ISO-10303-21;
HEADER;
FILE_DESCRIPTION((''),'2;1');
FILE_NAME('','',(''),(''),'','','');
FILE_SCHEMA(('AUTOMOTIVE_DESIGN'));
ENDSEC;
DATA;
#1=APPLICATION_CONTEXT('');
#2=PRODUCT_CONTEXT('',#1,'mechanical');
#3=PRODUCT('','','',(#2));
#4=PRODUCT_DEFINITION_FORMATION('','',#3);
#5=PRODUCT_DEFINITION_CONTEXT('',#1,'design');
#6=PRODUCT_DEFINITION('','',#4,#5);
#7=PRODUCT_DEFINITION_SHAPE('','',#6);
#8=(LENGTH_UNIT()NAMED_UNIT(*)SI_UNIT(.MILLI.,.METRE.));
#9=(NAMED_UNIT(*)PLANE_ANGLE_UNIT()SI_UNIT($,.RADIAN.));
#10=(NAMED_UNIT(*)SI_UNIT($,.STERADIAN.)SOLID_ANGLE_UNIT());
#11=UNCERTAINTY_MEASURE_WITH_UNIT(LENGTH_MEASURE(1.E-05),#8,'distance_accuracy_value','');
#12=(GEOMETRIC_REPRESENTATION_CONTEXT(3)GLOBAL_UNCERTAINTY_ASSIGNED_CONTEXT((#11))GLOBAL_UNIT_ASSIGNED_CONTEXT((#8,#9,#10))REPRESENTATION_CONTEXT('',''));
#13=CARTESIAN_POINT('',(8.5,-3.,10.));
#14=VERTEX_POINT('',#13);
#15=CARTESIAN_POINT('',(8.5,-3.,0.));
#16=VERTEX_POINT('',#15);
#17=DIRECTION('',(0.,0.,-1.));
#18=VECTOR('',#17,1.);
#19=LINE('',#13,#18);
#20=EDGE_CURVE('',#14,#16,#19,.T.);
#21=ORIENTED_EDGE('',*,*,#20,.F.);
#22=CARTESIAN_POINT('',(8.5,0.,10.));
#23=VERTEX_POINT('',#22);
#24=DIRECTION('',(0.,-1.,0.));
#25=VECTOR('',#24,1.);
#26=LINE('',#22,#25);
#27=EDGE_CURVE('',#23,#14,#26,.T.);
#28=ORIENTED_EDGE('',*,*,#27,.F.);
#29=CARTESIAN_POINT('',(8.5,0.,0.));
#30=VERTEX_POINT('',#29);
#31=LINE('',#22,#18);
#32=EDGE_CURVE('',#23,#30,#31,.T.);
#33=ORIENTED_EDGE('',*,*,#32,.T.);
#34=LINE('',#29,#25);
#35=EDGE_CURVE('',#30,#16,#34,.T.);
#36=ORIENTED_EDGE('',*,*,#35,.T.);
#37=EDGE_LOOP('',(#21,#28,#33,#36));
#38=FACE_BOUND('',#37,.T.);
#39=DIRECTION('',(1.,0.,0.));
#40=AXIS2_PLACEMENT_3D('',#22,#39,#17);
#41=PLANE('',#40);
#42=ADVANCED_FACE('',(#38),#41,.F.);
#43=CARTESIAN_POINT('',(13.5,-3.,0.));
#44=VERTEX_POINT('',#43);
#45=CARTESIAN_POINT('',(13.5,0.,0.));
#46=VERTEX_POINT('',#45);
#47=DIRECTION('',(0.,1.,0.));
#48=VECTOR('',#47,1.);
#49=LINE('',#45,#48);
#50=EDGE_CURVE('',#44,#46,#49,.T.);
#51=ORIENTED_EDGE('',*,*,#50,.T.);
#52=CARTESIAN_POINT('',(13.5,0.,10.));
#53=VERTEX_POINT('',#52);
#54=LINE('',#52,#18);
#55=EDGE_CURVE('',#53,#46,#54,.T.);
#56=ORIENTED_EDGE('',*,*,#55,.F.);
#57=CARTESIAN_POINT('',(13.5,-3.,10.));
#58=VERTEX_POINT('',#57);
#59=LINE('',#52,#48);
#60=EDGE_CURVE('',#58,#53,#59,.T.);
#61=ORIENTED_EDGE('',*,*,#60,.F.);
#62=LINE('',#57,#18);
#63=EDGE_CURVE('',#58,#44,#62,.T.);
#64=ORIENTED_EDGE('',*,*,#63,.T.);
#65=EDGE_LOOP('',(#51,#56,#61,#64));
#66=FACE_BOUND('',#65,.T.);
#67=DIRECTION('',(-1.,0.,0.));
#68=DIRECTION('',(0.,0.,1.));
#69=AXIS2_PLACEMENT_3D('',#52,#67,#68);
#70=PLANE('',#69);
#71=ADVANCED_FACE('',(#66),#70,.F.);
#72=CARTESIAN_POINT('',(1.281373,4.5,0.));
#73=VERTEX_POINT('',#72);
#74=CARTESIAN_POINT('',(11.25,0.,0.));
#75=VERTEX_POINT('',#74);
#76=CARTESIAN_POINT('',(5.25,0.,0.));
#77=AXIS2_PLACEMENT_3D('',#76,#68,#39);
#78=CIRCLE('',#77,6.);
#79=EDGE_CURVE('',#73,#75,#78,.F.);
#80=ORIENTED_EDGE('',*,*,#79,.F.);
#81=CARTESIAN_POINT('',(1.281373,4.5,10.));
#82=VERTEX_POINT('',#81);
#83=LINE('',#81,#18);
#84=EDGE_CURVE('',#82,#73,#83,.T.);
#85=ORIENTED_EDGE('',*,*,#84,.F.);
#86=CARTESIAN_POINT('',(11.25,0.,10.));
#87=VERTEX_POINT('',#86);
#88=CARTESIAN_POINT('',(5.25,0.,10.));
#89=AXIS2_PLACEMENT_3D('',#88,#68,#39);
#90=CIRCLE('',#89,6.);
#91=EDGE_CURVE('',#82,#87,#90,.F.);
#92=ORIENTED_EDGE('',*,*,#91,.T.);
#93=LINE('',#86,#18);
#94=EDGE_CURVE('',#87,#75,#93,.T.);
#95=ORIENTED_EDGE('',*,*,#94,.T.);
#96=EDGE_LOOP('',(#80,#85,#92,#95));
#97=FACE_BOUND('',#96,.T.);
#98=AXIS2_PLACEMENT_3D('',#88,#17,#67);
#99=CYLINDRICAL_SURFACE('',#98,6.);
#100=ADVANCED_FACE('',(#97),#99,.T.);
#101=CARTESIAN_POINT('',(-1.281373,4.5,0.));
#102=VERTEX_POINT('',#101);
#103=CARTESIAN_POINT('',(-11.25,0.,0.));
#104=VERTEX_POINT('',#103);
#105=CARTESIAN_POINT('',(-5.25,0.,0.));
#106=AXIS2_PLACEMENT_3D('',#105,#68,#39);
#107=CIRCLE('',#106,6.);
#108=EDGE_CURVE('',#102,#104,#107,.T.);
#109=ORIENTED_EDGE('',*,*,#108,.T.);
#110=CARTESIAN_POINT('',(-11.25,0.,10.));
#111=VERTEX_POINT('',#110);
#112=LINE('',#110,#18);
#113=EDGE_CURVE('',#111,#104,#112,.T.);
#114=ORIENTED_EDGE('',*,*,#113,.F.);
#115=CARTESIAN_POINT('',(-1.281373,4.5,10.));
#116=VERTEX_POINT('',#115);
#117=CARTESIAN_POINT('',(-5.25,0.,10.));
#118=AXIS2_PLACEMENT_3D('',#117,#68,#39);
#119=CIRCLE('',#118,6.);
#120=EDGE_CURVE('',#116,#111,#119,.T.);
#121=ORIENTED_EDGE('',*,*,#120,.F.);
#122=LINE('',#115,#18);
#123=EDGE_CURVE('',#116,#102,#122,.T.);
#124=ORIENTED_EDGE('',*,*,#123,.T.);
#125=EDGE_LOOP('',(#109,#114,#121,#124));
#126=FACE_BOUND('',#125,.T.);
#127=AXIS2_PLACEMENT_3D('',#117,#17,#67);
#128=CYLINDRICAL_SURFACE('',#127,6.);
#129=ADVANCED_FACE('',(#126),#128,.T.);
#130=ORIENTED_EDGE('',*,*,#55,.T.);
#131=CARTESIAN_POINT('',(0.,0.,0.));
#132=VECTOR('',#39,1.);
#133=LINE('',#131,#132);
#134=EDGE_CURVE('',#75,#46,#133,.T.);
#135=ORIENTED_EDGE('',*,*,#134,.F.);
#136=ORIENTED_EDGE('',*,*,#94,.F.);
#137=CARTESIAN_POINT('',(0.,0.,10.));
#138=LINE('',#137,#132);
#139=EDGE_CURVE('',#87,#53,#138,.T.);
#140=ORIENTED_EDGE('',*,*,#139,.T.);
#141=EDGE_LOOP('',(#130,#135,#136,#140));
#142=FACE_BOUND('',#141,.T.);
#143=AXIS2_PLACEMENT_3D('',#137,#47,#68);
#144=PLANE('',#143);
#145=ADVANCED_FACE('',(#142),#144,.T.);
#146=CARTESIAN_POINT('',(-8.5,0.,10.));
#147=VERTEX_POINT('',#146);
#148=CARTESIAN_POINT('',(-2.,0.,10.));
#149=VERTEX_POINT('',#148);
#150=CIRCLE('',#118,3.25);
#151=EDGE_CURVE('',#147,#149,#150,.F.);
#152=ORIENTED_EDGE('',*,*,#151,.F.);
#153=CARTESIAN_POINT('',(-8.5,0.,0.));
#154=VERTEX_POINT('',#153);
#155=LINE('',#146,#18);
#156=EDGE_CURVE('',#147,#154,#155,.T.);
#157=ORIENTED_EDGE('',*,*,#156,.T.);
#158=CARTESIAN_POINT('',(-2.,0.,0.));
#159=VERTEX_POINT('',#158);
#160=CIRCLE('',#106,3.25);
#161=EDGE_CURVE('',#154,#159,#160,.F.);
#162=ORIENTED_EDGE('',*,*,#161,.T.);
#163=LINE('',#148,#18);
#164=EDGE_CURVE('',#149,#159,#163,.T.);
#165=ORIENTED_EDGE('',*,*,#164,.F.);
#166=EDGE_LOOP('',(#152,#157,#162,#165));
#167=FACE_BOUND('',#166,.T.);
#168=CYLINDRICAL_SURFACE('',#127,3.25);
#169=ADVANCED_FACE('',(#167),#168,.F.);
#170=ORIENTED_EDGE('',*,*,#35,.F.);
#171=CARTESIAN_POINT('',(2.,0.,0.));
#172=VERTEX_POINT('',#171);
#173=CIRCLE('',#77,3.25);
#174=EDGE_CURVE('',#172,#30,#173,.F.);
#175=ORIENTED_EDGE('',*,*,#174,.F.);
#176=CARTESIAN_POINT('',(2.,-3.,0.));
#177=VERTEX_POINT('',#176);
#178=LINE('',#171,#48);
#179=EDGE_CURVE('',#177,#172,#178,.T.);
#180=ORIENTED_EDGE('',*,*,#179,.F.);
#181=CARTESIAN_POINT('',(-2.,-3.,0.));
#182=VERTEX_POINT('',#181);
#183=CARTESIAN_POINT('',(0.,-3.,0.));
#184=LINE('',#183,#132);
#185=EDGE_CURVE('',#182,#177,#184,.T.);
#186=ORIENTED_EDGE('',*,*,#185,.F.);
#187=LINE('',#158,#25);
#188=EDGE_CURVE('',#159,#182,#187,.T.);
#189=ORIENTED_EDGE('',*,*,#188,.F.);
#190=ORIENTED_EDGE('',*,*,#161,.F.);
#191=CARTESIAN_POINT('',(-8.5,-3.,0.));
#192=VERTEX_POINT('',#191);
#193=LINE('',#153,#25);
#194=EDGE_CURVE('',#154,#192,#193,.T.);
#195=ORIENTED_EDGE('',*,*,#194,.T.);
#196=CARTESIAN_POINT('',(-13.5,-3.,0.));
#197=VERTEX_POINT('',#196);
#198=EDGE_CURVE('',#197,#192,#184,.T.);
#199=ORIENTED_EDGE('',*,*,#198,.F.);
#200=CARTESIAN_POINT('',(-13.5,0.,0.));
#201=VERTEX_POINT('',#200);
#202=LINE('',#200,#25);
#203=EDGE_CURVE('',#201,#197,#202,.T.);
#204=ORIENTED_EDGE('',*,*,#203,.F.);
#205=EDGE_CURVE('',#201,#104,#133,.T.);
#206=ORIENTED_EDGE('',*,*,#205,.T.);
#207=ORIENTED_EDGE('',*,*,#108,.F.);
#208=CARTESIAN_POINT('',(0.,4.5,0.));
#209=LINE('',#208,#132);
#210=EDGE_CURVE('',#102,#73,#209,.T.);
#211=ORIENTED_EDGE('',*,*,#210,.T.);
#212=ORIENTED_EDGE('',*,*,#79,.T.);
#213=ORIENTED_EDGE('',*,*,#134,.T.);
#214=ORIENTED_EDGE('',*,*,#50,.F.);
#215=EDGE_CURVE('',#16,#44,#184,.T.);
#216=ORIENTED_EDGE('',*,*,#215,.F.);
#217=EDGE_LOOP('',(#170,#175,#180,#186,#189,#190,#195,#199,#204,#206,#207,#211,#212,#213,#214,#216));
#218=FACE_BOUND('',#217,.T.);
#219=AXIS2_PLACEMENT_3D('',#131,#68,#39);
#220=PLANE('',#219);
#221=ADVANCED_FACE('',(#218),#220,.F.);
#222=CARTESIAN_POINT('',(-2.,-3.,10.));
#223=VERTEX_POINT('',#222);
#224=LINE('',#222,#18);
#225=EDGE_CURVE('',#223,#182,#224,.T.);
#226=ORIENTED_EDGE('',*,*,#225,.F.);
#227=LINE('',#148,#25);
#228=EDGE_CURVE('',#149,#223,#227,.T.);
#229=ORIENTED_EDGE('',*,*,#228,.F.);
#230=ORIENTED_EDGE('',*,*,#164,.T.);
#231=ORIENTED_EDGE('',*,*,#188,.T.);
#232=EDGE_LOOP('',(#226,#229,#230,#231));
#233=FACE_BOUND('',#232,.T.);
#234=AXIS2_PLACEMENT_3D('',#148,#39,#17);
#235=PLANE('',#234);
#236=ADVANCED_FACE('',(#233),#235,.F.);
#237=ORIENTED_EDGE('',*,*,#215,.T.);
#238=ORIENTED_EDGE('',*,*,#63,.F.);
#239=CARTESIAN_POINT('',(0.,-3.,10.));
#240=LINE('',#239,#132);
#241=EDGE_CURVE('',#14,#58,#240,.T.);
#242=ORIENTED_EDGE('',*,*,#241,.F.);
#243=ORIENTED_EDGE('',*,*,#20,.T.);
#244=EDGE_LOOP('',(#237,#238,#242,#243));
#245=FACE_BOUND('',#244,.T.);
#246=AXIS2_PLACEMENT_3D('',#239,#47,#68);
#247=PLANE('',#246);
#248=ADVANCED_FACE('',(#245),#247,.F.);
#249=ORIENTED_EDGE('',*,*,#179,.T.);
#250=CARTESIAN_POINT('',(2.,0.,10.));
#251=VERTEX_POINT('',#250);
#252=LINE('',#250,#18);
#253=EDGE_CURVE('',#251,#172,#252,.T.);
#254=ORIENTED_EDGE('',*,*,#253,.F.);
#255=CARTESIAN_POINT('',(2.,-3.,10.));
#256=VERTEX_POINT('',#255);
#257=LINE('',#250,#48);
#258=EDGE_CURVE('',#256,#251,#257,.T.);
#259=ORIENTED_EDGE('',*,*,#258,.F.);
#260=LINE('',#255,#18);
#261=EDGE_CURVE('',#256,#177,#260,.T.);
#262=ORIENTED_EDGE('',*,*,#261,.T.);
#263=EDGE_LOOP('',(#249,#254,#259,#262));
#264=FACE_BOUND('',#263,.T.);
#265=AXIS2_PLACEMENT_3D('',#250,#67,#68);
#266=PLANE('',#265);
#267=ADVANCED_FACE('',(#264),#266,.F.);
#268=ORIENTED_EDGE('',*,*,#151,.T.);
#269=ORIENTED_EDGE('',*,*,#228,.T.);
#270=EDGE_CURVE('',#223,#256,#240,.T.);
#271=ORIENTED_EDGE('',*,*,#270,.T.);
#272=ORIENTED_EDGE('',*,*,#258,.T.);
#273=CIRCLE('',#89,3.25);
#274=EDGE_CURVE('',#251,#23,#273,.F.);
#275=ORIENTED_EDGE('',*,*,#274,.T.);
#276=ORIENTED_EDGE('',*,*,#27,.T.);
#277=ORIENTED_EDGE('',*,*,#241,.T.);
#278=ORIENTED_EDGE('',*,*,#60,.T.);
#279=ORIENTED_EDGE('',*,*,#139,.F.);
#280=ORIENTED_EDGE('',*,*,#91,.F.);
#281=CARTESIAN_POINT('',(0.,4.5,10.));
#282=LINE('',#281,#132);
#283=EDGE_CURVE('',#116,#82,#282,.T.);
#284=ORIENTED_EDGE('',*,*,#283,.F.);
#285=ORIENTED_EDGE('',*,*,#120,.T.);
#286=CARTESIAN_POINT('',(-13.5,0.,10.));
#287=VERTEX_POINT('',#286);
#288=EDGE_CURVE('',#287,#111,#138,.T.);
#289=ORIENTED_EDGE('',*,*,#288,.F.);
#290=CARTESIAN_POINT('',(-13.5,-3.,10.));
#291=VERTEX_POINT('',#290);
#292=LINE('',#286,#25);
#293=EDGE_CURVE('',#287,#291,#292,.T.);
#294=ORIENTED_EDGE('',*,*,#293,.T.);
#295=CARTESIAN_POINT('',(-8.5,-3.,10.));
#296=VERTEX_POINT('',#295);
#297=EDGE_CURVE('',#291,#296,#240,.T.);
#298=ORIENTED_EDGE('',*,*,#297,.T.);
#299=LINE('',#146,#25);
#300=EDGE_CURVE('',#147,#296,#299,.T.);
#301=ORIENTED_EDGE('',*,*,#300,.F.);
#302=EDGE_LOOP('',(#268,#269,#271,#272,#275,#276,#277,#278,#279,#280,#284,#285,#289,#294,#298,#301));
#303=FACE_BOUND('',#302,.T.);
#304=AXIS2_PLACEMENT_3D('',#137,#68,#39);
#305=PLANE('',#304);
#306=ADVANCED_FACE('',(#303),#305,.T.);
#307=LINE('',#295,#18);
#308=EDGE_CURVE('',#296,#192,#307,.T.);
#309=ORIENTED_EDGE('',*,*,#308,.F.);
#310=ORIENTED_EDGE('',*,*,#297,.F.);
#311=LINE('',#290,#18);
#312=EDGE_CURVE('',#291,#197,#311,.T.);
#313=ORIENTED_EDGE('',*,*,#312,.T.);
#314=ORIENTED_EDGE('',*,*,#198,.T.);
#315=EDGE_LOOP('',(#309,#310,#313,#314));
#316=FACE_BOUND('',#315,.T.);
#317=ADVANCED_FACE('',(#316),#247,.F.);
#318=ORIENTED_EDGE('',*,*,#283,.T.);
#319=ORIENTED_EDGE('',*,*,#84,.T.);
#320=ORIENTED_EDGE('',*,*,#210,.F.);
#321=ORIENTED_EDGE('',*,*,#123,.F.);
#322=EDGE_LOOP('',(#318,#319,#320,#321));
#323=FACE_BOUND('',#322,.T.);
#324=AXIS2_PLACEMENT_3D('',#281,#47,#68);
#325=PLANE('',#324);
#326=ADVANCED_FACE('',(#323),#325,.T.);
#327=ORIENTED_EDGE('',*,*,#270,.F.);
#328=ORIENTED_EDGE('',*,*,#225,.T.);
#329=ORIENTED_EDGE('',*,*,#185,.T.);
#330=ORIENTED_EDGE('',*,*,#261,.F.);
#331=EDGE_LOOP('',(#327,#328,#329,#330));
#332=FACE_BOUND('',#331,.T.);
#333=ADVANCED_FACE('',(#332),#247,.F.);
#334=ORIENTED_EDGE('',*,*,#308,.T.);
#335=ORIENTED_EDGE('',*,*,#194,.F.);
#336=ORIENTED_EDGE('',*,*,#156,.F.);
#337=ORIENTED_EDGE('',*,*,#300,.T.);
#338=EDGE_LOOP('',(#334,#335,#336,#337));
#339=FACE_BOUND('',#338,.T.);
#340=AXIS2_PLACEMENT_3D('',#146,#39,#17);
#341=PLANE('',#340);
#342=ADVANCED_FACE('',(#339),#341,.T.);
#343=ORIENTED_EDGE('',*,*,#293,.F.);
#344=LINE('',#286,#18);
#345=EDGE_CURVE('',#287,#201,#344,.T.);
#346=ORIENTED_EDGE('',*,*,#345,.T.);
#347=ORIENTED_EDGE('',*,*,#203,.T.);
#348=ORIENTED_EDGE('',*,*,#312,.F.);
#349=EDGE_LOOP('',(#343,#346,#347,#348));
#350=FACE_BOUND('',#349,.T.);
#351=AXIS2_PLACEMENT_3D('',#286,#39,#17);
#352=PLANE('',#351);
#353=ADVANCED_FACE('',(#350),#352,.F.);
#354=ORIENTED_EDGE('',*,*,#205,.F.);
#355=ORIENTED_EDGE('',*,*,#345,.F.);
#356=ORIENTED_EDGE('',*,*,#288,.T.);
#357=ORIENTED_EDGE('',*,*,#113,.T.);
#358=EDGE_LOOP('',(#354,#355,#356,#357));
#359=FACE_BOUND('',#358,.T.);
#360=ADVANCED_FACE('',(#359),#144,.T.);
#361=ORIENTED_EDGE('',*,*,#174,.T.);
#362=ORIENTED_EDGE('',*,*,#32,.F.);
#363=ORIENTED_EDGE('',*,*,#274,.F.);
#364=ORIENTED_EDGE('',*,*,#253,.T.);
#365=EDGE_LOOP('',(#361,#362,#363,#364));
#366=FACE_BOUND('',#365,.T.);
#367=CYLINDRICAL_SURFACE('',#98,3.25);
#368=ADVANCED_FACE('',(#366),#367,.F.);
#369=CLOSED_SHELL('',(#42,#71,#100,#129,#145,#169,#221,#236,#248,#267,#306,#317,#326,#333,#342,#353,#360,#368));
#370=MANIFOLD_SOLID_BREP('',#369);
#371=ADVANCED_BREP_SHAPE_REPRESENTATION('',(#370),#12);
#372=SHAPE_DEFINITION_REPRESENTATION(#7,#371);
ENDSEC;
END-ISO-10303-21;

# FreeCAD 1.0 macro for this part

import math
import FreeCAD as App
import Part
import Sketcher

V = App.Vector
Q = App.Units.Quantity

doc = App.newDocument("Part")
body = doc.addObject("PartDesign::Body", "Body")

# Sketch on XY plane
sketch1 = body.newObject("Sketcher::SketchObject", "Sketch")
sketch1.AttachmentSupport = (doc.getObject("XY_Plane"), [""])
sketch1.MapMode = "FlatFace"
sketch1.addGeometry(Part.ArcOfCircle(Part.Circle(V(5.25, 0, 0), V(0, 0, 1), 3.25), math.radians(0), math.radians(180)), False)
sketch1.addGeometry(Part.LineSegment(V(8.5, 0, 0), V(8.5, -3, 0)), False)
sketch1.addGeometry(Part.LineSegment(V(8.5, -3, 0), V(13.5, -3, 0)), False)
sketch1.addGeometry(Part.LineSegment(V(13.5, -3, 0), V(13.5, 0, 0)), False)
sketch1.addGeometry(Part.LineSegment(V(13.5, 0, 0), V(11.25, 0, 0)), False)
sketch1.addGeometry(Part.ArcOfCircle(Part.Circle(V(5.25, 0, 0), V(0, 0, 1), 6), math.radians(0), math.radians(131.409622)), False)
sketch1.addGeometry(Part.LineSegment(V(1.281373, 4.5, 0), V(-1.281373, 4.5, 0)), False)
sketch1.addGeometry(Part.ArcOfCircle(Part.Circle(V(-5.25, 0, 0), V(0, 0, 1), 6), math.radians(48.590378), math.radians(180)), False)
sketch1.addGeometry(Part.LineSegment(V(-11.25, 0, 0), V(-13.5, 0, 0)), False)
sketch1.addGeometry(Part.LineSegment(V(-13.5, 0, 0), V(-13.5, -3, 0)), False)
sketch1.addGeometry(Part.LineSegment(V(-13.5, -3, 0), V(-8.5, -3, 0)), False)
sketch1.addGeometry(Part.LineSegment(V(-8.5, -3, 0), V(-8.5, 0, 0)), False)
sketch1.addGeometry(Part.ArcOfCircle(Part.Circle(V(-5.25, 0, 0), V(0, 0, 1), 3.25), math.radians(0), math.radians(180)), False)
sketch1.addGeometry(Part.LineSegment(V(-2, 0, 0), V(-2, -3, 0)), False)
sketch1.addGeometry(Part.LineSegment(V(-2, -3, 0), V(2, -3, 0)), False)
sketch1.addGeometry(Part.LineSegment(V(2, -3, 0), V(2, 0, 0)), False)
sketch1.addConstraint(Sketcher.Constraint("Tangent", 0, 1, 1, 1))
sketch1.addConstraint(Sketcher.Constraint("Coincident", 1, 2, 2, 1))
sketch1.addConstraint(Sketcher.Constraint("Coincident", 2, 2, 3, 1))
sketch1.addConstraint(Sketcher.Constraint("Coincident", 3, 2, 4, 1))
sketch1.addConstraint(Sketcher.Constraint("Coincident", 4, 2, 5, 1))
sketch1.addConstraint(Sketcher.Constraint("Coincident", 5, 2, 6, 1))
sketch1.addConstraint(Sketcher.Constraint("Coincident", 6, 2, 7, 1))
sketch1.addConstraint(Sketcher.Constraint("Coincident", 7, 2, 8, 1))
sketch1.addConstraint(Sketcher.Constraint("Coincident", 8, 2, 9, 1))
sketch1.addConstraint(Sketcher.Constraint("Coincident", 9, 2, 10, 1))
sketch1.addConstraint(Sketcher.Constraint("Coincident", 10, 2, 11, 1))
sketch1.addConstraint(Sketcher.Constraint("Tangent", 11, 2, 12, 2))
sketch1.addConstraint(Sketcher.Constraint("Tangent", 12, 1, 13, 1))
sketch1.addConstraint(Sketcher.Constraint("Coincident", 13, 2, 14, 1))
sketch1.addConstraint(Sketcher.Constraint("Coincident", 14, 2, 15, 1))
sketch1.addConstraint(Sketcher.Constraint("Tangent", 15, 2, 0, 2))
sketch1.addConstraint(Sketcher.Constraint("Vertical", 1))
sketch1.addConstraint(Sketcher.Constraint("Horizontal", 2))
sketch1.addConstraint(Sketcher.Constraint("Vertical", 3))
sketch1.addConstraint(Sketcher.Constraint("Horizontal", 4))
sketch1.addConstraint(Sketcher.Constraint("Horizontal", 6))
sketch1.addConstraint(Sketcher.Constraint("Horizontal", 8))
sketch1.addConstraint(Sketcher.Constraint("Vertical", 9))
sketch1.addConstraint(Sketcher.Constraint("Horizontal", 10))
sketch1.addConstraint(Sketcher.Constraint("Vertical", 11))
sketch1.addConstraint(Sketcher.Constraint("Vertical", 13))
sketch1.addConstraint(Sketcher.Constraint("Horizontal", 14))
sketch1.addConstraint(Sketcher.Constraint("Vertical", 15))
sketch1.addConstraint(Sketcher.Constraint("Coincident", 5, 3, 0, 3))
sketch1.addConstraint(Sketcher.Constraint("Coincident", 12, 3, 7, 3))
sketch1.addConstraint(Sketcher.Constraint("Equal", 5, 7))
sketch1.addConstraint(Sketcher.Constraint("Equal", 0, 12))
sketch1.addConstraint(Sketcher.Constraint("Symmetric", 0, 3, 7, 3, -1, 1))
sketch1.addConstraint(Sketcher.Constraint("Symmetric", 3, 2, 8, 2, -1, 1))
sketch1.addConstraint(Sketcher.Constraint("PointOnObject", 0, 3, -1))
sketch1.addConstraint(Sketcher.Constraint("PointOnObject", 3, 2, -1))
sketch1.addConstraint(Sketcher.Constraint("Horizontal", 2, 2, 9, 2))
sketch1.addConstraint(Sketcher.Constraint("Horizontal", 10, 2, 13, 2))
sketch1.addConstraint(Sketcher.Constraint("Radius", 5, Q("6 mm")))
sketch1.addConstraint(Sketcher.Constraint("DistanceX", 2, 1, 2, 2, Q("5 mm")))
sketch1.addConstraint(Sketcher.Constraint("DistanceX", 14, 1, 14, 2, Q("4 mm")))
sketch1.addConstraint(Sketcher.Constraint("DistanceY", 1, 2, 1, 1, Q("3 mm")))
sketch1.addConstraint(Sketcher.Constraint("Radius", 0, Q("3.25 mm")))
sketch1.addConstraint(Sketcher.Constraint("DistanceY", -1, 1, 5, 2, Q("4.5 mm")))
pad1 = body.newObject("PartDesign::Pad", "Pad")
pad1.Profile = sketch1
pad1.Length = 10

doc.recompute()
